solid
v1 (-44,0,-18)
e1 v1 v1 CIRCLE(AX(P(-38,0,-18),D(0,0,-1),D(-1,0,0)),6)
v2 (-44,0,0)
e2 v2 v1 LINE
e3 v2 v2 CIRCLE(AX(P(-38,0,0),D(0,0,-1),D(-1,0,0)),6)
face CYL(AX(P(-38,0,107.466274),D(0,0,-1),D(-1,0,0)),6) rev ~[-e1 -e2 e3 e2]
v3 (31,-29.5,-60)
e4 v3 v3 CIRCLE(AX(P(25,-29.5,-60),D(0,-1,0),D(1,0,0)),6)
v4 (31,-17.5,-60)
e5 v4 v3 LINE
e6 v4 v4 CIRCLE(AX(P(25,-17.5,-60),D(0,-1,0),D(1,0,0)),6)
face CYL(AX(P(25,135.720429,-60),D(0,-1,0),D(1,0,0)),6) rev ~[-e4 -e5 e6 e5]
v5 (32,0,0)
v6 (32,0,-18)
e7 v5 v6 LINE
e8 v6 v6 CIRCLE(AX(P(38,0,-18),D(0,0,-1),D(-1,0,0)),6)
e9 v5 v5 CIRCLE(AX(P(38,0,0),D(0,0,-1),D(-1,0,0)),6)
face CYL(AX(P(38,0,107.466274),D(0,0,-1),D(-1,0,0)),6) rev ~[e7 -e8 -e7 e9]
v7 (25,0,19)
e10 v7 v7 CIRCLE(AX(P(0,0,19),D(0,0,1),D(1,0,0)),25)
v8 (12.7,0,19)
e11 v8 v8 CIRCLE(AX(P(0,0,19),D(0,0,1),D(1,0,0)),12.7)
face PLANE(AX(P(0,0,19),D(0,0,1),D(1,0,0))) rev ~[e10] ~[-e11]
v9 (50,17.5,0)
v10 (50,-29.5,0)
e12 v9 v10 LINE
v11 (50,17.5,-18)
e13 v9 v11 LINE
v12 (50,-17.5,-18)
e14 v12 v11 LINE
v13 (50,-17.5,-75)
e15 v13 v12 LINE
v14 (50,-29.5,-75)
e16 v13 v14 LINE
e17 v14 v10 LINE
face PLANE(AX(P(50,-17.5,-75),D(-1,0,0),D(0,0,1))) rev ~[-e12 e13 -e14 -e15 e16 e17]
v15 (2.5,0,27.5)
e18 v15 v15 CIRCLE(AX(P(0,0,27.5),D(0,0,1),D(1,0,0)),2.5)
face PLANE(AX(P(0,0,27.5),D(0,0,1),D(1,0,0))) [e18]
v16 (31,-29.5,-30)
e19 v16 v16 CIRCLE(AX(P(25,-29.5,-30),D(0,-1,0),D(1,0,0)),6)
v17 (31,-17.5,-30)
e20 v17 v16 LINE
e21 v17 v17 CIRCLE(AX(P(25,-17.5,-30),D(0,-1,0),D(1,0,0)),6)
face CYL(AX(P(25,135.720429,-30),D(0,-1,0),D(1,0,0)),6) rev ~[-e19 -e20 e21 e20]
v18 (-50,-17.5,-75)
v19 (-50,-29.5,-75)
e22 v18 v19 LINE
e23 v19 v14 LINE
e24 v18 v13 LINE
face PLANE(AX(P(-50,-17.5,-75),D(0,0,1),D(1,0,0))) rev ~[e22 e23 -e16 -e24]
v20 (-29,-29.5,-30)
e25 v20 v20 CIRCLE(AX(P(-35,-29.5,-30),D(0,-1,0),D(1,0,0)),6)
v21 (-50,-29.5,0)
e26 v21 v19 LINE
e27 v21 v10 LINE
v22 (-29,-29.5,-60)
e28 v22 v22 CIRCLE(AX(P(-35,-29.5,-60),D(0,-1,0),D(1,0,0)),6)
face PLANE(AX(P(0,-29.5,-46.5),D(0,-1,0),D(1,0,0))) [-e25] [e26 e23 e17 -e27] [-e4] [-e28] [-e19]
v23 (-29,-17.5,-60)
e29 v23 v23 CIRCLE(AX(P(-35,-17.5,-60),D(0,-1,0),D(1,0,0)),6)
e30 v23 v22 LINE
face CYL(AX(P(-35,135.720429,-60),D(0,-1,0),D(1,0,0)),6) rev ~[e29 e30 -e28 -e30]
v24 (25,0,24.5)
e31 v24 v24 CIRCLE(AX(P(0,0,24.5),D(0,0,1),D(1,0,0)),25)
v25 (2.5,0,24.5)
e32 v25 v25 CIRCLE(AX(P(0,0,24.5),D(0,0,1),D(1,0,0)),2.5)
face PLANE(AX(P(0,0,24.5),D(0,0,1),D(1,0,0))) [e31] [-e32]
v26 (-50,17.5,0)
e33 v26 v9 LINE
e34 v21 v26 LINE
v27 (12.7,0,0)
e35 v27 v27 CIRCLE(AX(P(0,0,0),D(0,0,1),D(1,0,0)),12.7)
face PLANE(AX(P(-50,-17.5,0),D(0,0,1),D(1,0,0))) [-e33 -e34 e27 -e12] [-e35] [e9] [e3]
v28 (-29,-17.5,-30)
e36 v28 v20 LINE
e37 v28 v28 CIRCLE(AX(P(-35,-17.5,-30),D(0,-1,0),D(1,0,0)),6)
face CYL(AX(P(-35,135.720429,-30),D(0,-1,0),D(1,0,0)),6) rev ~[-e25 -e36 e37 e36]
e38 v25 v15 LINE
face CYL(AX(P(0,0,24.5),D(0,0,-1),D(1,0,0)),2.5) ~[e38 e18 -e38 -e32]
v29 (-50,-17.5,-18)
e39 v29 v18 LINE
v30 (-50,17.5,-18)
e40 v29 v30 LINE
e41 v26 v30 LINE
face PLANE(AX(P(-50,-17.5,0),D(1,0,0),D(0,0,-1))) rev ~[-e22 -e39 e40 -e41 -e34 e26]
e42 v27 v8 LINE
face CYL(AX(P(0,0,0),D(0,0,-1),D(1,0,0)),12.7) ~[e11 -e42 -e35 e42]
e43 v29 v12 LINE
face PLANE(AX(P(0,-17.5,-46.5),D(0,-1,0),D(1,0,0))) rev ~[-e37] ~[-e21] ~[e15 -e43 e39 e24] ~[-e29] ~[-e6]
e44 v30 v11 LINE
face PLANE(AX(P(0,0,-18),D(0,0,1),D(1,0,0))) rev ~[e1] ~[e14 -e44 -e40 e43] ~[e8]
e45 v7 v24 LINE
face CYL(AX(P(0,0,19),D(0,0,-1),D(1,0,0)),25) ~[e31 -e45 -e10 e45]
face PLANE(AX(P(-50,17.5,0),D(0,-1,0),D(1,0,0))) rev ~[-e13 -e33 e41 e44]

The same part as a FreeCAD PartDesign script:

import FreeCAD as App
import Part
import Sketcher

doc = App.newDocument("Part")
body = doc.addObject("PartDesign::Body", "Body")

# Sketch on XY plane
sketch1 = doc.addObject("Sketcher::SketchObject", "Sketch")
body.addObject(sketch1)
sketch1.AttachmentSupport = (doc.XY_Plane, [""])
sketch1.MapMode = "FlatFace"
sketch1.addGeometry([
    Part.LineSegment(App.Vector(-50, 18, 0), App.Vector(-50, -18, 0)),
    Part.LineSegment(App.Vector(-50, -18, 0), App.Vector(50, -18, 0)),
    Part.LineSegment(App.Vector(50, -18, 0), App.Vector(50, 18, 0)),
    Part.LineSegment(App.Vector(50, 18, 0), App.Vector(-50, 18, 0)),
], False)
sketch1.addConstraint([
    Sketcher.Constraint("Coincident", 0, 2, 1, 1),
    Sketcher.Constraint("Coincident", 1, 2, 2, 1),
    Sketcher.Constraint("Coincident", 2, 2, 3, 1),
    Sketcher.Constraint("Coincident", 3, 2, 0, 1),
    Sketcher.Constraint("Vertical", 0),
    Sketcher.Constraint("Horizontal", 1),
    Sketcher.Constraint("Vertical", 2),
    Sketcher.Constraint("Horizontal", 3),
    Sketcher.Constraint("Symmetric", 0, 2, 2, 2, -1, 1),
    Sketcher.Constraint("DistanceX", 1, 1, 1, 2, 100.0),
    Sketcher.Constraint("DistanceY", 0, 2, 0, 1, 35.0),
])
pad1 = doc.addObject("PartDesign::Pad", "Pad")
body.addObject(pad1)
pad1.Profile = sketch1
pad1.Length = 18
pad1.Reversed = True

# Sketch on XY plane
sketch2 = doc.addObject("Sketcher::SketchObject", "Sketch001")
body.addObject(sketch2)
sketch2.AttachmentSupport = (doc.XY_Plane, [""])
sketch2.MapMode = "FlatFace"
sketch2.addGeometry([
    Part.Circle(App.Vector(-38, 0, 0), App.Vector(0, 0, 1), 6),
    Part.Circle(App.Vector(38, 0, 0), App.Vector(0, 0, 1), 6),
], False)
sketch2.addConstraint([
    Sketcher.Constraint("Equal", 0, 1),
    Sketcher.Constraint("Symmetric", 0, 3, 1, 3, -1, 1),
    Sketcher.Constraint("PointOnObject", 0, 3, -1),
    Sketcher.Constraint("Diameter", 0, 12.0),
    Sketcher.Constraint("DistanceX", 0, 3, -1, 1, 38.0),
])
doc.recompute()
hole = doc.addObject("PartDesign::Hole", "Hole")
body.addObject(hole)
hole.Profile = sketch2
hole.ThreadType = "None"
hole.Diameter = 12
hole.DepthType = "ThroughAll"

# Sketch on XY plane
sketch3 = doc.addObject("Sketcher::SketchObject", "Sketch002")
body.addObject(sketch3)
sketch3.AttachmentSupport = (doc.XY_Plane, [""])
sketch3.MapMode = "FlatFace"
sketch3.addGeometry(Part.Circle(App.Vector(0, 0, 0), App.Vector(0, 0, 1), 13), False)
sketch3.addConstraint([
    Sketcher.Constraint("Coincident", 0, 3, -1, 1),
    Sketcher.Constraint("Diameter", 0, 25.4),
])
pad2 = doc.addObject("PartDesign::Pad", "Pad001")
body.addObject(pad2)
pad2.Profile = sketch3
pad2.Length = 19

# Sketch on XY plane
sketch4 = doc.addObject("Sketcher::SketchObject", "Sketch003")
body.addObject(sketch4)
sketch4.AttachmentSupport = (doc.XY_Plane, [""])
sketch4.MapMode = "FlatFace"
sketch4.AttachmentOffset = App.Placement(App.Vector(0, 0, 19), App.Rotation())
sketch4.addGeometry(Part.Circle(App.Vector(0, 0, 0), App.Vector(0, 0, 1), 25), False)
sketch4.addConstraint([
    Sketcher.Constraint("Coincident", 0, 3, -1, 1),
    Sketcher.Constraint("Diameter", 0, 50.0),
])
pad3 = doc.addObject("PartDesign::Pad", "Pad002")
body.addObject(pad3)
pad3.Profile = sketch4
pad3.Length = 5.5

# Sketch on XY plane
sketch5 = doc.addObject("Sketcher::SketchObject", "Sketch004")
body.addObject(sketch5)
sketch5.AttachmentSupport = (doc.XY_Plane, [""])
sketch5.MapMode = "FlatFace"
sketch5.AttachmentOffset = App.Placement(App.Vector(0, 0, 24.5), App.Rotation())
sketch5.addGeometry(Part.Circle(App.Vector(0, 0, 0), App.Vector(0, 0, 1), 2.5), False)
sketch5.addConstraint([
    Sketcher.Constraint("Coincident", 0, 3, -1, 1),
    Sketcher.Constraint("Diameter", 0, 5.0),
])
pad4 = doc.addObject("PartDesign::Pad", "Pad003")
body.addObject(pad4)
pad4.Profile = sketch5
pad4.Length = 3

# Sketch on XZ plane
sketch6 = doc.addObject("Sketcher::SketchObject", "Sketch005")
body.addObject(sketch6)
sketch6.AttachmentSupport = (doc.XZ_Plane, [""])
sketch6.MapMode = "FlatFace"
sketch6.AttachmentOffset = App.Placement(App.Vector(0, 0, 17.5), App.Rotation())
sketch6.addGeometry([
    Part.LineSegment(App.Vector(-50, -75, 0), App.Vector(50, -75, 0)),
    Part.LineSegment(App.Vector(50, -75, 0), App.Vector(50, 0, 0)),
    Part.LineSegment(App.Vector(50, 0, 0), App.Vector(-50, 0, 0)),
    Part.LineSegment(App.Vector(-50, 0, 0), App.Vector(-50, -75, 0)),
], False)
sketch6.addConstraint([
    Sketcher.Constraint("Coincident", 0, 2, 1, 1),
    Sketcher.Constraint("Coincident", 1, 2, 2, 1),
    Sketcher.Constraint("Coincident", 2, 2, 3, 1),
    Sketcher.Constraint("Coincident", 3, 2, 0, 1),
    Sketcher.Constraint("Horizontal", 0),
    Sketcher.Constraint("Vertical", 1),
    Sketcher.Constraint("Horizontal", 2),
    Sketcher.Constraint("Vertical", 3),
    Sketcher.Constraint("Symmetric", 1, 2, 2, 2, -1, 1),
    Sketcher.Constraint("DistanceX", 0, 1, 0, 2, 100.0),
    Sketcher.Constraint("DistanceY", 1, 1, 1, 2, 75.0),
])
pad5 = doc.addObject("PartDesign::Pad", "Pad004")
body.addObject(pad5)
pad5.Profile = sketch6
pad5.Length = 12

# Sketch on XZ plane
sketch7 = doc.addObject("Sketcher::SketchObject", "Sketch006")
body.addObject(sketch7)
sketch7.AttachmentSupport = (doc.XZ_Plane, [""])
sketch7.MapMode = "FlatFace"
sketch7.AttachmentOffset = App.Placement(App.Vector(0, 0, 17.5), App.Rotation())
sketch7.addGeometry([
    Part.Circle(App.Vector(25, -30, 0), App.Vector(0, 0, 1), 6),
    Part.Circle(App.Vector(25, -60, 0), App.Vector(0, 0, 1), 6),
    Part.Circle(App.Vector(-35, -60, 0), App.Vector(0, 0, 1), 6),
    Part.Circle(App.Vector(-35, -30, 0), App.Vector(0, 0, 1), 6),
], False)
sketch7.addConstraint([
    Sketcher.Constraint("Equal", 0, 1),
    Sketcher.Constraint("Equal", 1, 2),
    Sketcher.Constraint("Equal", 2, 3),
    Sketcher.Constraint("Horizontal", 1, 3, 2, 3),
    Sketcher.Constraint("Horizontal", 0, 3, 3, 3),
    Sketcher.Constraint("Vertical", 0, 3, 1, 3),
    Sketcher.Constraint("Vertical", 2, 3, 3, 3),
    Sketcher.Constraint("Diameter", 0, 12.0),
    Sketcher.Constraint("DistanceX", -1, 1, 0, 3, 25.0),
    Sketcher.Constraint("DistanceY", 0, 3, -1, 1, 30.0),
    Sketcher.Constraint("DistanceY", 1, 3, -1, 1, 60.0),
    Sketcher.Constraint("DistanceX", 2, 3, -1, 1, 35.0),
])
doc.recompute()
hole2 = doc.addObject("PartDesign::Hole", "Hole001")
body.addObject(hole2)
hole2.Profile = sketch7
hole2.ThreadType = "None"
hole2.Diameter = 12
hole2.DepthType = "ThroughAll"
hole2.Reversed = True

doc.recompute()
